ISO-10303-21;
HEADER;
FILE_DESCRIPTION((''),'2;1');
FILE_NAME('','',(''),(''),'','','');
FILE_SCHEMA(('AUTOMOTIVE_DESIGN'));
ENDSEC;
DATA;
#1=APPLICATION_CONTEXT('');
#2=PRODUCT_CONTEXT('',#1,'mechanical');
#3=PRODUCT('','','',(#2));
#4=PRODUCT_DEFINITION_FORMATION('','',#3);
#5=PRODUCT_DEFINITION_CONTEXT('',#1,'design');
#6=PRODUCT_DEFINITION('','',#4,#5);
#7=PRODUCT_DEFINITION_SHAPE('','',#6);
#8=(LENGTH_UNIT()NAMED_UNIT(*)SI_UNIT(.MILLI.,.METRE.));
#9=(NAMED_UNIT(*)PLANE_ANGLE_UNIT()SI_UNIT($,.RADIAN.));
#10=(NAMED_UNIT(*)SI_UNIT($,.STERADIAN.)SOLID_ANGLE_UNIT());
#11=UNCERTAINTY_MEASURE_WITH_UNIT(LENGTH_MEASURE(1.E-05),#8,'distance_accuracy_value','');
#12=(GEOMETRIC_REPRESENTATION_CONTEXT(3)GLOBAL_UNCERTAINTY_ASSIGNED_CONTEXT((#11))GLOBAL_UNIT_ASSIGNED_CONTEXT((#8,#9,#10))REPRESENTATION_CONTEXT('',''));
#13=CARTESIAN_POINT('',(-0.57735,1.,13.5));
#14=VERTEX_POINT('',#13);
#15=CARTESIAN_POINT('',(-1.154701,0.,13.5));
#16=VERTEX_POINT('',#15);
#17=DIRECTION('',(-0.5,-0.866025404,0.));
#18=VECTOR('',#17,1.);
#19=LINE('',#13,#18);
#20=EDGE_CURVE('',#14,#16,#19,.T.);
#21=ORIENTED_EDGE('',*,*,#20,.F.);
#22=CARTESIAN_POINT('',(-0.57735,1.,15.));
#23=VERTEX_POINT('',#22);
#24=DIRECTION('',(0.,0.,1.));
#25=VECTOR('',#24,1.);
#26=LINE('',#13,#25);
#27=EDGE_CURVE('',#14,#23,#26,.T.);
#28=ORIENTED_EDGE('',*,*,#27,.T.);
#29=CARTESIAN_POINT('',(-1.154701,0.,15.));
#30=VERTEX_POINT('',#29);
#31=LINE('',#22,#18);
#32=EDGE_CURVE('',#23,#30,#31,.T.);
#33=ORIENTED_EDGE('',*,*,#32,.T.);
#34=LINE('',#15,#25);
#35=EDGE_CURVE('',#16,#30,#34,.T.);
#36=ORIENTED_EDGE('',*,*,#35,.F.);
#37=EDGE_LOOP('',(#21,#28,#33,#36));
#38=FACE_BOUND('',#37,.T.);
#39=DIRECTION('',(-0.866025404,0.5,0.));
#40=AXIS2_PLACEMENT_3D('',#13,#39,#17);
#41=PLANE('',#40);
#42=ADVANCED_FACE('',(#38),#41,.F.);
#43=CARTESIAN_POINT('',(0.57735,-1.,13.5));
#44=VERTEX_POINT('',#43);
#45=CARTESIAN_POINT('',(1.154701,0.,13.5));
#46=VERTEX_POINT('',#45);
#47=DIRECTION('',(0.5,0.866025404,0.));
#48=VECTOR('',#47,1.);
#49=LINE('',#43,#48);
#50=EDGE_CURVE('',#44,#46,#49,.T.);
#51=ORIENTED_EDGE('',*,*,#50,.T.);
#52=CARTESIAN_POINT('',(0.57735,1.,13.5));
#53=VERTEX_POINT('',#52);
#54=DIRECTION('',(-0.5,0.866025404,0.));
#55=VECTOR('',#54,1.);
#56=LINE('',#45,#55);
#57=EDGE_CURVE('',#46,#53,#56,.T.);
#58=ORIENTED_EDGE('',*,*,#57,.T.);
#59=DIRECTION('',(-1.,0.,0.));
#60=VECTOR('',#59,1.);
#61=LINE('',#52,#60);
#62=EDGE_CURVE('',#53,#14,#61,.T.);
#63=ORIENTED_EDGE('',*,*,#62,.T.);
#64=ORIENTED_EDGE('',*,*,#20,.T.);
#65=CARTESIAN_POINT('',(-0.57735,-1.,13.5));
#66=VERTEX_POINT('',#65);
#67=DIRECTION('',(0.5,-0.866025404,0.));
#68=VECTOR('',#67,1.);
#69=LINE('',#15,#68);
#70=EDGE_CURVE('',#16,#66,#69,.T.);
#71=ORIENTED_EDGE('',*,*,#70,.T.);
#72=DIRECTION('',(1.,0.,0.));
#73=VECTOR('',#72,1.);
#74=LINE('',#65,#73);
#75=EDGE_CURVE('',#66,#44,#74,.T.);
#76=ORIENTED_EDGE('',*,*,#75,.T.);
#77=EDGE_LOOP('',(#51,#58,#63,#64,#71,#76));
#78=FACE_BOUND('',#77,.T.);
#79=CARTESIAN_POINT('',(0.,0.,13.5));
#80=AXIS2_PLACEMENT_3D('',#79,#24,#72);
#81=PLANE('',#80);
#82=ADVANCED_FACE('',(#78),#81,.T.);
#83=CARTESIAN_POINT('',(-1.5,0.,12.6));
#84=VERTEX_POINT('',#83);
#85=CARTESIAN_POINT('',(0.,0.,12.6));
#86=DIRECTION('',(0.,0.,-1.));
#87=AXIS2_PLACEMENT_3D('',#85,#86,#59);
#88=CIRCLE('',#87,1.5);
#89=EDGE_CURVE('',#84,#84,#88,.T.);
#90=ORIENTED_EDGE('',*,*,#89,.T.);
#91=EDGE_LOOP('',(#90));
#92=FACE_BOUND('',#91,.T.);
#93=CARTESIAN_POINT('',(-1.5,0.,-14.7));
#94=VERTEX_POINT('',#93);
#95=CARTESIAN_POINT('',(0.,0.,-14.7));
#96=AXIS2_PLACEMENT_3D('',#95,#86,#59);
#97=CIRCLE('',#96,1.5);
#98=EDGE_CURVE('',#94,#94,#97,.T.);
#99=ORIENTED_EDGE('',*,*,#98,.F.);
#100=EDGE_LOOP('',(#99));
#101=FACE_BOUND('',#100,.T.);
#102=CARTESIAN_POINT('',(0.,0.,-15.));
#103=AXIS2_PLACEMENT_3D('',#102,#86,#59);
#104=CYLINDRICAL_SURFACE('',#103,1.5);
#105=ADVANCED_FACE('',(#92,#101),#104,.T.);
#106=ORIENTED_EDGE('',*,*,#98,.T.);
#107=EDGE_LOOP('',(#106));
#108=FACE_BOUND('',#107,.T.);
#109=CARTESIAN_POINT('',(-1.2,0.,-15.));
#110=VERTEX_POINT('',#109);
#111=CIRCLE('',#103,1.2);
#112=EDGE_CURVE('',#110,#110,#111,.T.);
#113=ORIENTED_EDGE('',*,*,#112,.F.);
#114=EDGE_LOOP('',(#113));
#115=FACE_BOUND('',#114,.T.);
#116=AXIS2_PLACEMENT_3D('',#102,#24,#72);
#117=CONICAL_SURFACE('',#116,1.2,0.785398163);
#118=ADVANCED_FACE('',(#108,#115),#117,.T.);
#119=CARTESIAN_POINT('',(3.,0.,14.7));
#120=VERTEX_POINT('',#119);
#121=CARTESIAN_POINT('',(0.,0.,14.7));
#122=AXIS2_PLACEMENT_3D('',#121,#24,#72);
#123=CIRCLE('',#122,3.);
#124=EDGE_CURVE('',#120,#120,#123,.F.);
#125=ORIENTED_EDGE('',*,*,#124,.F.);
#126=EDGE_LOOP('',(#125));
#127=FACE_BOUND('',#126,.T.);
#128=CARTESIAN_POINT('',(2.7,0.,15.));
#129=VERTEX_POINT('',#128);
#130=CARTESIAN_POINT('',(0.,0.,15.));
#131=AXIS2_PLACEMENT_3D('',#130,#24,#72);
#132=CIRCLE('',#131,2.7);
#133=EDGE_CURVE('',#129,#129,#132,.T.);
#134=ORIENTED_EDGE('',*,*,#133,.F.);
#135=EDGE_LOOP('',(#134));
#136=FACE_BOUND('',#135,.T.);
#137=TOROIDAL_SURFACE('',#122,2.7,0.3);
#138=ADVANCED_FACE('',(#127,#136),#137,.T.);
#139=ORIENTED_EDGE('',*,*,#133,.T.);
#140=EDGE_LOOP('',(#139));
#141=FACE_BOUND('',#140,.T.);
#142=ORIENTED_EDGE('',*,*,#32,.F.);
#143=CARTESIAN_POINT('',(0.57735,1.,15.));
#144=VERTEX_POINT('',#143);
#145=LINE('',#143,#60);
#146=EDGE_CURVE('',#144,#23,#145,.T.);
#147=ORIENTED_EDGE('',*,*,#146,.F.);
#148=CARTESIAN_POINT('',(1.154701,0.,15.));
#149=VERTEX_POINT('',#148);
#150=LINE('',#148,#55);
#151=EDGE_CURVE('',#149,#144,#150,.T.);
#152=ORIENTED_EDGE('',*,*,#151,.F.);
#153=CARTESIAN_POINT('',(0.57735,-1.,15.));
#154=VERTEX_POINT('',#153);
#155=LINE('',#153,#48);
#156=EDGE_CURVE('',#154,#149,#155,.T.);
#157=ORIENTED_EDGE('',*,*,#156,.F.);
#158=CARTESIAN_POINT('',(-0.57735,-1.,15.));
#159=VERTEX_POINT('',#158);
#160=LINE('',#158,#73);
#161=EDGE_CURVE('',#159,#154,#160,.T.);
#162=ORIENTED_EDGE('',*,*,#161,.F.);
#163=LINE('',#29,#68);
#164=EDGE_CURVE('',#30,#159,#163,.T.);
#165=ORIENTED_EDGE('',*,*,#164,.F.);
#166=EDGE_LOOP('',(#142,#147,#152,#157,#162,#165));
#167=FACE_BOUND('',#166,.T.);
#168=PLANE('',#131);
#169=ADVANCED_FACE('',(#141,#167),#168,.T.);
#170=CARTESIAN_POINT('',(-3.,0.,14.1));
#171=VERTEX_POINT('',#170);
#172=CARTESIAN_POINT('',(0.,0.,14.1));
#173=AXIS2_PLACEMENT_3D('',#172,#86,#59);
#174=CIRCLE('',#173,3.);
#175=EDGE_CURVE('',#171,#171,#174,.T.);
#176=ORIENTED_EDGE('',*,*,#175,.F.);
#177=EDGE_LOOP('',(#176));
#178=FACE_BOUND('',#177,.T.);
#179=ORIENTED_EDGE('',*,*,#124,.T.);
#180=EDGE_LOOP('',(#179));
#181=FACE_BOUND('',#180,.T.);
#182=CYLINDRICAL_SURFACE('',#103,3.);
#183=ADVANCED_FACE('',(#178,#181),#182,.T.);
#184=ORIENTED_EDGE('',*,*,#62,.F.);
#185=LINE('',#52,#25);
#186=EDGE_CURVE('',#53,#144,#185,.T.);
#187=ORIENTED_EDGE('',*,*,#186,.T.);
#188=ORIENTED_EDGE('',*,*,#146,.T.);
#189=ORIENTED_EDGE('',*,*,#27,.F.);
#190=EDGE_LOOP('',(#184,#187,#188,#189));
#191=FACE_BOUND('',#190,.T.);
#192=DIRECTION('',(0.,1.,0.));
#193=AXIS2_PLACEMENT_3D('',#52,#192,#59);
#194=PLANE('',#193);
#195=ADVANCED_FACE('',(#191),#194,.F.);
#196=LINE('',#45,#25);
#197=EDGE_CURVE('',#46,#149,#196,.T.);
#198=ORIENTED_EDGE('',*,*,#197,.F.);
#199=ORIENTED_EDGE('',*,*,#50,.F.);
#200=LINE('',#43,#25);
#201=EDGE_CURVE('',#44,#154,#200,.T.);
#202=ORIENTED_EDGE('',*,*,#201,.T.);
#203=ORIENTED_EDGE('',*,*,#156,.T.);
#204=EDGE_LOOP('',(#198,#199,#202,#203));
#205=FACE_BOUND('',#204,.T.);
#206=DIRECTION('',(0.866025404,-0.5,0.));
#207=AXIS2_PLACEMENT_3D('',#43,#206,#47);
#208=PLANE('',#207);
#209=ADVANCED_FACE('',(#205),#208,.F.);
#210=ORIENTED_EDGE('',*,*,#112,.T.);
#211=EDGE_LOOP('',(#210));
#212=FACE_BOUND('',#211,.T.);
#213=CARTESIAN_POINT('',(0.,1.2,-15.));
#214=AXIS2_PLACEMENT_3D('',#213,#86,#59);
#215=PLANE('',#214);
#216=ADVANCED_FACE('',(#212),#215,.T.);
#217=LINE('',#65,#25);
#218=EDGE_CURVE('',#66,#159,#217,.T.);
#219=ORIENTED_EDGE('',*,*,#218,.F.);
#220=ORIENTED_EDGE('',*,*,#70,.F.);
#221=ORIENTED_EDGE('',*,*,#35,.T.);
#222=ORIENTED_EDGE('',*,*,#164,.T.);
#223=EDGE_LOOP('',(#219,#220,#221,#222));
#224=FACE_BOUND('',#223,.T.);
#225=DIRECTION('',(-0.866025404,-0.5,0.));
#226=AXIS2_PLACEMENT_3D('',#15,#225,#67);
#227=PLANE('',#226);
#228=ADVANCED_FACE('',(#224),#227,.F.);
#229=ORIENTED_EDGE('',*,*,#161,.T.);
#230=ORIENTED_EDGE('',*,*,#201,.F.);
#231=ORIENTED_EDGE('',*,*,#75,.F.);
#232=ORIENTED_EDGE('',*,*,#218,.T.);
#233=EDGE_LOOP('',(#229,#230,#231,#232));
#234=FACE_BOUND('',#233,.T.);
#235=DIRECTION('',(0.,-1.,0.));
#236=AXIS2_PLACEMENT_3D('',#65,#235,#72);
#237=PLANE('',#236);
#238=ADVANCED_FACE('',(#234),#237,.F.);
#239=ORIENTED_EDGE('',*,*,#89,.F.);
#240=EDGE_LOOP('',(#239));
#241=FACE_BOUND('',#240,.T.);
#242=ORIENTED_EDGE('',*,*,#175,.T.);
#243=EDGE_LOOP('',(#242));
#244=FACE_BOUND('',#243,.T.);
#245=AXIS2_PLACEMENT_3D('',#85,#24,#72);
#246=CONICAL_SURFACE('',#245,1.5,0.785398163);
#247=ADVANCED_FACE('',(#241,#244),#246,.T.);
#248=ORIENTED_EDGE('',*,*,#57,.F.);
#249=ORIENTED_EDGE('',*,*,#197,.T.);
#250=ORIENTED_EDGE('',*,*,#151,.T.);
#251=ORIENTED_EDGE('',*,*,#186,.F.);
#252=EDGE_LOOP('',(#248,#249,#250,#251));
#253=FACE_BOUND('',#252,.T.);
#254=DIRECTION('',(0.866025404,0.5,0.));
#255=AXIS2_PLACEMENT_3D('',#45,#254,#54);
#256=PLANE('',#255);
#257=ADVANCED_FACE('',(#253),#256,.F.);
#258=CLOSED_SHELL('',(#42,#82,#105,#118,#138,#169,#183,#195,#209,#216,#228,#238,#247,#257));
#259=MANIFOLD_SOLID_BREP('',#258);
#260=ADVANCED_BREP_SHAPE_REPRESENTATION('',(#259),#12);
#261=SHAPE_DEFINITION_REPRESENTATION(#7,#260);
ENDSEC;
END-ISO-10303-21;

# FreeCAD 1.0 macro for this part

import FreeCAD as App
import Part
import Sketcher
Q = App.Units.Quantity


def edges_at(feature, points):
    """Names of the edges that pass closest to the given points."""
    edges = feature.Shape.Edges
    near = lambda p: min(range(len(edges)), key=lambda i: edges[i].distToShape(Part.Vertex(*p))[0])
    return sorted({f"Edge{near(p) + 1}" for p in points})


def add_polygon(sketch, points):
    """Adds a closed chain of lines whose ends are joined by coincident constraints."""
    first, n = sketch.GeometryCount, len(points)
    for a, b in zip(points, points[1:] + points[:1]):
        sketch.addGeometry(Part.LineSegment(App.Vector(*a, 0), App.Vector(*b, 0)), False)
    for i in range(n):
        sketch.addConstraint(Sketcher.Constraint("Coincident", first + i, 2, first + (i + 1) % n, 1))

doc = App.newDocument("Part")
body = doc.addObject("PartDesign::Body", "Body")

sketch1 = body.newObject("Sketcher::SketchObject", "Sketch")
sketch1.AttachmentSupport = (doc.getObject("YZ_Plane"), [""])
sketch1.MapMode = "FlatFace"
add_polygon(sketch1, [(3, 15), (0, 15), (0, -15), (1.2, -15), (1.5, -14.7), (1.5, 12.6), (3, 14.1)])
sketch1.addConstraint(Sketcher.Constraint("Horizontal", 0))
sketch1.addConstraint(Sketcher.Constraint("Vertical", 1))
sketch1.addConstraint(Sketcher.Constraint("Horizontal", 2))
sketch1.addConstraint(Sketcher.Constraint("Vertical", 4))
sketch1.addConstraint(Sketcher.Constraint("Vertical", 6))
sketch1.addConstraint(Sketcher.Constraint("Symmetric", 0, 2, 1, 2, -1, 1))
sketch1.addConstraint(Sketcher.Constraint("Parallel", 3, 5))
sketch1.addConstraint(Sketcher.Constraint("DistanceX", 0, 2, 0, 1, 3.0))
sketch1.addConstraint(Sketcher.Constraint("DistanceY", 1, 2, 1, 1, 30.0))
sketch1.addConstraint(Sketcher.Constraint("Angle", 3, Q("45 deg")))
sketch1.addConstraint(Sketcher.Constraint("DistanceX", 2, 1, 2, 2, 1.2))
sketch1.addConstraint(Sketcher.Constraint("DistanceY", 4, 1, 4, 2, 27.3))
sketch1.addConstraint(Sketcher.Constraint("DistanceX", -1, 1, 3, 2, 1.5))
revolution = body.newObject("PartDesign::Revolution", "Revolution")
revolution.Profile = sketch1
revolution.ReferenceAxis = (sketch1, ["V_Axis"])
revolution.Angle = 360

sketch2 = body.newObject("Sketcher::SketchObject", "Sketch001")
sketch2.AttachmentSupport = (doc.getObject("XY_Plane"), [""])
sketch2.MapMode = "FlatFace"
sketch2.AttachmentOffset = App.Placement(App.Vector(0, 0, 15), App.Rotation())
add_polygon(sketch2, [(1.2, 0), (0.6, 1), (-0.6, 1), (-1.2, 0), (-0.6, -1), (0.6, -1)])
sketch2.addConstraint(Sketcher.Constraint("Horizontal", 1))
sketch2.addConstraint(Sketcher.Constraint("Horizontal", 4))
sketch2.addConstraint(Sketcher.Constraint("Symmetric", 0, 2, 3, 2, -1, 1))
sketch2.addConstraint(Sketcher.Constraint("Symmetric", 2, 2, 5, 2, -1, 1))
sketch2.addConstraint(Sketcher.Constraint("PointOnObject", 2, 2, -1))
sketch2.addConstraint(Sketcher.Constraint("Parallel", 2, 5))
sketch2.addConstraint(Sketcher.Constraint("Vertical", 1, 2, 3, 2))
sketch2.addConstraint(Sketcher.Constraint("Angle", 0, Q("120 deg")))
sketch2.addConstraint(Sketcher.Constraint("DistanceY", -1, 1, 0, 2, 1.0))
sketch2.addConstraint(Sketcher.Constraint("DistanceX", 1, 2, 1, 1, 1.154701))
pocket1 = body.newObject("PartDesign::Pocket", "Pocket")
pocket1.Profile = sketch2
pocket1.Length = 1.5
doc.recompute()

fillet = body.newObject("PartDesign::Fillet", "Fillet")
fillet.Base = (pocket1, edges_at(pocket1, [(3, 0, 15)]))
fillet.Radius = 0.3

doc.recompute()
